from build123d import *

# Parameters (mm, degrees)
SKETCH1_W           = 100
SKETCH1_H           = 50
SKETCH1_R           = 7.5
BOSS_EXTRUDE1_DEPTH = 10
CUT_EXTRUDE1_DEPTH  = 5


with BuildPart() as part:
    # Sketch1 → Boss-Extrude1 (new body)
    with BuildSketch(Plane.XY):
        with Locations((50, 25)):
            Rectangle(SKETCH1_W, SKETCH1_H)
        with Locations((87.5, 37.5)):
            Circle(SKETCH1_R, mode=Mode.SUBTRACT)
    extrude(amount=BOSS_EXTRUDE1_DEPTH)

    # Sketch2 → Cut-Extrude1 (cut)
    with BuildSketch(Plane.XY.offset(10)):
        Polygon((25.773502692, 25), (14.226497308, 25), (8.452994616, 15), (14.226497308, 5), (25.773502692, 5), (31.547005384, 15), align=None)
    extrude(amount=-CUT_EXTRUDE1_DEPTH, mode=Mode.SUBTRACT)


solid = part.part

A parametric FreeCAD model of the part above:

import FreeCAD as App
import Part
import Sketcher

V = App.Vector
Q = App.Units.Quantity

doc = App.newDocument("Part")
body = doc.addObject("PartDesign::Body", "Body")

sketch1 = body.newObject("Sketcher::SketchObject", "Sketch")
sketch1.AttachmentSupport = (doc.getObject("XY_Plane"), [""])
sketch1.MapMode = "FlatFace"
sketch1.addGeometry([
    Part.LineSegment(V(0, 50, 0), V(0, 0, 0)),
    Part.LineSegment(V(0, 0, 0), V(100, 0, 0)),
    Part.LineSegment(V(100, 0, 0), V(100, 50, 0)),
    Part.LineSegment(V(100, 50, 0), V(0, 50, 0)),
    Part.Circle(V(88, 38, 0), V(0, 0, 1), 8),
], False)
sketch1.addConstraint([
    Sketcher.Constraint("Coincident", 0, 2, 1, 1),
    Sketcher.Constraint("Coincident", 1, 2, 2, 1),
    Sketcher.Constraint("Coincident", 2, 2, 3, 1),
    Sketcher.Constraint("Coincident", 3, 2, 0, 1),
    Sketcher.Constraint("Vertical", 0),
    Sketcher.Constraint("Horizontal", 1),
    Sketcher.Constraint("Vertical", 2),
    Sketcher.Constraint("Horizontal", 3),
    Sketcher.Constraint("Coincident", 0, 2, -1, 1),
    Sketcher.Constraint("Diameter", 4, 15.0),
    Sketcher.Constraint("DistanceX", 1, 1, 1, 2, 100.0),
    Sketcher.Constraint("DistanceY", 0, 2, 0, 1, 50.0),
    Sketcher.Constraint("DistanceX", -1, 1, 4, 3, 87.5),
    Sketcher.Constraint("DistanceY", -1, 1, 4, 3, 37.5),
])
pad1 = body.newObject("PartDesign::Pad", "Pad")
pad1.Profile = sketch1
pad1.Length = 10

sketch2 = body.newObject("Sketcher::SketchObject", "Sketch001")
sketch2.AttachmentSupport = (doc.getObject("XY_Plane"), [""])
sketch2.MapMode = "FlatFace"
sketch2.AttachmentOffset = App.Placement(V(0, 0, 10), App.Rotation())
sketch2.addGeometry([
    Part.LineSegment(V(26, 25, 0), V(14, 25, 0)),
    Part.LineSegment(V(14, 25, 0), V(8, 15, 0)),
    Part.LineSegment(V(8, 15, 0), V(14, 5, 0)),
    Part.LineSegment(V(14, 5, 0), V(26, 5, 0)),
    Part.LineSegment(V(26, 5, 0), V(32, 15, 0)),
    Part.LineSegment(V(32, 15, 0), V(26, 25, 0)),
], False)
sketch2.addConstraint([
    Sketcher.Constraint("Coincident", 0, 2, 1, 1),
    Sketcher.Constraint("Coincident", 1, 2, 2, 1),
    Sketcher.Constraint("Coincident", 2, 2, 3, 1),
    Sketcher.Constraint("Coincident", 3, 2, 4, 1),
    Sketcher.Constraint("Coincident", 4, 2, 5, 1),
    Sketcher.Constraint("Coincident", 5, 2, 0, 1),
    Sketcher.Constraint("Horizontal", 0),
    Sketcher.Constraint("Horizontal", 3),
    Sketcher.Constraint("Parallel", 1, 4),
    Sketcher.Constraint("Parallel", 2, 5),
    Sketcher.Constraint("Horizontal", 1, 2, 4, 2),
    Sketcher.Constraint("Vertical", 0, 2, 2, 2),
    Sketcher.Constraint("Vertical", 3, 2, 5, 2),
    Sketcher.Constraint("Angle", 1, Q("-120 deg")),
    Sketcher.Constraint("DistanceY", -1, 1, 0, 2, 25.0),
    Sketcher.Constraint("DistanceY", -1, 1, 1, 2, 15.0),
    Sketcher.Constraint("DistanceX", 0, 2, 0, 1, 11.547005),
    Sketcher.Constraint("DistanceX", -1, 1, 0, 2, 14.226497),
])
pocket1 = body.newObject("PartDesign::Pocket", "Pocket")
pocket1.Profile = sketch2
pocket1.Length = 5

doc.recompute()
